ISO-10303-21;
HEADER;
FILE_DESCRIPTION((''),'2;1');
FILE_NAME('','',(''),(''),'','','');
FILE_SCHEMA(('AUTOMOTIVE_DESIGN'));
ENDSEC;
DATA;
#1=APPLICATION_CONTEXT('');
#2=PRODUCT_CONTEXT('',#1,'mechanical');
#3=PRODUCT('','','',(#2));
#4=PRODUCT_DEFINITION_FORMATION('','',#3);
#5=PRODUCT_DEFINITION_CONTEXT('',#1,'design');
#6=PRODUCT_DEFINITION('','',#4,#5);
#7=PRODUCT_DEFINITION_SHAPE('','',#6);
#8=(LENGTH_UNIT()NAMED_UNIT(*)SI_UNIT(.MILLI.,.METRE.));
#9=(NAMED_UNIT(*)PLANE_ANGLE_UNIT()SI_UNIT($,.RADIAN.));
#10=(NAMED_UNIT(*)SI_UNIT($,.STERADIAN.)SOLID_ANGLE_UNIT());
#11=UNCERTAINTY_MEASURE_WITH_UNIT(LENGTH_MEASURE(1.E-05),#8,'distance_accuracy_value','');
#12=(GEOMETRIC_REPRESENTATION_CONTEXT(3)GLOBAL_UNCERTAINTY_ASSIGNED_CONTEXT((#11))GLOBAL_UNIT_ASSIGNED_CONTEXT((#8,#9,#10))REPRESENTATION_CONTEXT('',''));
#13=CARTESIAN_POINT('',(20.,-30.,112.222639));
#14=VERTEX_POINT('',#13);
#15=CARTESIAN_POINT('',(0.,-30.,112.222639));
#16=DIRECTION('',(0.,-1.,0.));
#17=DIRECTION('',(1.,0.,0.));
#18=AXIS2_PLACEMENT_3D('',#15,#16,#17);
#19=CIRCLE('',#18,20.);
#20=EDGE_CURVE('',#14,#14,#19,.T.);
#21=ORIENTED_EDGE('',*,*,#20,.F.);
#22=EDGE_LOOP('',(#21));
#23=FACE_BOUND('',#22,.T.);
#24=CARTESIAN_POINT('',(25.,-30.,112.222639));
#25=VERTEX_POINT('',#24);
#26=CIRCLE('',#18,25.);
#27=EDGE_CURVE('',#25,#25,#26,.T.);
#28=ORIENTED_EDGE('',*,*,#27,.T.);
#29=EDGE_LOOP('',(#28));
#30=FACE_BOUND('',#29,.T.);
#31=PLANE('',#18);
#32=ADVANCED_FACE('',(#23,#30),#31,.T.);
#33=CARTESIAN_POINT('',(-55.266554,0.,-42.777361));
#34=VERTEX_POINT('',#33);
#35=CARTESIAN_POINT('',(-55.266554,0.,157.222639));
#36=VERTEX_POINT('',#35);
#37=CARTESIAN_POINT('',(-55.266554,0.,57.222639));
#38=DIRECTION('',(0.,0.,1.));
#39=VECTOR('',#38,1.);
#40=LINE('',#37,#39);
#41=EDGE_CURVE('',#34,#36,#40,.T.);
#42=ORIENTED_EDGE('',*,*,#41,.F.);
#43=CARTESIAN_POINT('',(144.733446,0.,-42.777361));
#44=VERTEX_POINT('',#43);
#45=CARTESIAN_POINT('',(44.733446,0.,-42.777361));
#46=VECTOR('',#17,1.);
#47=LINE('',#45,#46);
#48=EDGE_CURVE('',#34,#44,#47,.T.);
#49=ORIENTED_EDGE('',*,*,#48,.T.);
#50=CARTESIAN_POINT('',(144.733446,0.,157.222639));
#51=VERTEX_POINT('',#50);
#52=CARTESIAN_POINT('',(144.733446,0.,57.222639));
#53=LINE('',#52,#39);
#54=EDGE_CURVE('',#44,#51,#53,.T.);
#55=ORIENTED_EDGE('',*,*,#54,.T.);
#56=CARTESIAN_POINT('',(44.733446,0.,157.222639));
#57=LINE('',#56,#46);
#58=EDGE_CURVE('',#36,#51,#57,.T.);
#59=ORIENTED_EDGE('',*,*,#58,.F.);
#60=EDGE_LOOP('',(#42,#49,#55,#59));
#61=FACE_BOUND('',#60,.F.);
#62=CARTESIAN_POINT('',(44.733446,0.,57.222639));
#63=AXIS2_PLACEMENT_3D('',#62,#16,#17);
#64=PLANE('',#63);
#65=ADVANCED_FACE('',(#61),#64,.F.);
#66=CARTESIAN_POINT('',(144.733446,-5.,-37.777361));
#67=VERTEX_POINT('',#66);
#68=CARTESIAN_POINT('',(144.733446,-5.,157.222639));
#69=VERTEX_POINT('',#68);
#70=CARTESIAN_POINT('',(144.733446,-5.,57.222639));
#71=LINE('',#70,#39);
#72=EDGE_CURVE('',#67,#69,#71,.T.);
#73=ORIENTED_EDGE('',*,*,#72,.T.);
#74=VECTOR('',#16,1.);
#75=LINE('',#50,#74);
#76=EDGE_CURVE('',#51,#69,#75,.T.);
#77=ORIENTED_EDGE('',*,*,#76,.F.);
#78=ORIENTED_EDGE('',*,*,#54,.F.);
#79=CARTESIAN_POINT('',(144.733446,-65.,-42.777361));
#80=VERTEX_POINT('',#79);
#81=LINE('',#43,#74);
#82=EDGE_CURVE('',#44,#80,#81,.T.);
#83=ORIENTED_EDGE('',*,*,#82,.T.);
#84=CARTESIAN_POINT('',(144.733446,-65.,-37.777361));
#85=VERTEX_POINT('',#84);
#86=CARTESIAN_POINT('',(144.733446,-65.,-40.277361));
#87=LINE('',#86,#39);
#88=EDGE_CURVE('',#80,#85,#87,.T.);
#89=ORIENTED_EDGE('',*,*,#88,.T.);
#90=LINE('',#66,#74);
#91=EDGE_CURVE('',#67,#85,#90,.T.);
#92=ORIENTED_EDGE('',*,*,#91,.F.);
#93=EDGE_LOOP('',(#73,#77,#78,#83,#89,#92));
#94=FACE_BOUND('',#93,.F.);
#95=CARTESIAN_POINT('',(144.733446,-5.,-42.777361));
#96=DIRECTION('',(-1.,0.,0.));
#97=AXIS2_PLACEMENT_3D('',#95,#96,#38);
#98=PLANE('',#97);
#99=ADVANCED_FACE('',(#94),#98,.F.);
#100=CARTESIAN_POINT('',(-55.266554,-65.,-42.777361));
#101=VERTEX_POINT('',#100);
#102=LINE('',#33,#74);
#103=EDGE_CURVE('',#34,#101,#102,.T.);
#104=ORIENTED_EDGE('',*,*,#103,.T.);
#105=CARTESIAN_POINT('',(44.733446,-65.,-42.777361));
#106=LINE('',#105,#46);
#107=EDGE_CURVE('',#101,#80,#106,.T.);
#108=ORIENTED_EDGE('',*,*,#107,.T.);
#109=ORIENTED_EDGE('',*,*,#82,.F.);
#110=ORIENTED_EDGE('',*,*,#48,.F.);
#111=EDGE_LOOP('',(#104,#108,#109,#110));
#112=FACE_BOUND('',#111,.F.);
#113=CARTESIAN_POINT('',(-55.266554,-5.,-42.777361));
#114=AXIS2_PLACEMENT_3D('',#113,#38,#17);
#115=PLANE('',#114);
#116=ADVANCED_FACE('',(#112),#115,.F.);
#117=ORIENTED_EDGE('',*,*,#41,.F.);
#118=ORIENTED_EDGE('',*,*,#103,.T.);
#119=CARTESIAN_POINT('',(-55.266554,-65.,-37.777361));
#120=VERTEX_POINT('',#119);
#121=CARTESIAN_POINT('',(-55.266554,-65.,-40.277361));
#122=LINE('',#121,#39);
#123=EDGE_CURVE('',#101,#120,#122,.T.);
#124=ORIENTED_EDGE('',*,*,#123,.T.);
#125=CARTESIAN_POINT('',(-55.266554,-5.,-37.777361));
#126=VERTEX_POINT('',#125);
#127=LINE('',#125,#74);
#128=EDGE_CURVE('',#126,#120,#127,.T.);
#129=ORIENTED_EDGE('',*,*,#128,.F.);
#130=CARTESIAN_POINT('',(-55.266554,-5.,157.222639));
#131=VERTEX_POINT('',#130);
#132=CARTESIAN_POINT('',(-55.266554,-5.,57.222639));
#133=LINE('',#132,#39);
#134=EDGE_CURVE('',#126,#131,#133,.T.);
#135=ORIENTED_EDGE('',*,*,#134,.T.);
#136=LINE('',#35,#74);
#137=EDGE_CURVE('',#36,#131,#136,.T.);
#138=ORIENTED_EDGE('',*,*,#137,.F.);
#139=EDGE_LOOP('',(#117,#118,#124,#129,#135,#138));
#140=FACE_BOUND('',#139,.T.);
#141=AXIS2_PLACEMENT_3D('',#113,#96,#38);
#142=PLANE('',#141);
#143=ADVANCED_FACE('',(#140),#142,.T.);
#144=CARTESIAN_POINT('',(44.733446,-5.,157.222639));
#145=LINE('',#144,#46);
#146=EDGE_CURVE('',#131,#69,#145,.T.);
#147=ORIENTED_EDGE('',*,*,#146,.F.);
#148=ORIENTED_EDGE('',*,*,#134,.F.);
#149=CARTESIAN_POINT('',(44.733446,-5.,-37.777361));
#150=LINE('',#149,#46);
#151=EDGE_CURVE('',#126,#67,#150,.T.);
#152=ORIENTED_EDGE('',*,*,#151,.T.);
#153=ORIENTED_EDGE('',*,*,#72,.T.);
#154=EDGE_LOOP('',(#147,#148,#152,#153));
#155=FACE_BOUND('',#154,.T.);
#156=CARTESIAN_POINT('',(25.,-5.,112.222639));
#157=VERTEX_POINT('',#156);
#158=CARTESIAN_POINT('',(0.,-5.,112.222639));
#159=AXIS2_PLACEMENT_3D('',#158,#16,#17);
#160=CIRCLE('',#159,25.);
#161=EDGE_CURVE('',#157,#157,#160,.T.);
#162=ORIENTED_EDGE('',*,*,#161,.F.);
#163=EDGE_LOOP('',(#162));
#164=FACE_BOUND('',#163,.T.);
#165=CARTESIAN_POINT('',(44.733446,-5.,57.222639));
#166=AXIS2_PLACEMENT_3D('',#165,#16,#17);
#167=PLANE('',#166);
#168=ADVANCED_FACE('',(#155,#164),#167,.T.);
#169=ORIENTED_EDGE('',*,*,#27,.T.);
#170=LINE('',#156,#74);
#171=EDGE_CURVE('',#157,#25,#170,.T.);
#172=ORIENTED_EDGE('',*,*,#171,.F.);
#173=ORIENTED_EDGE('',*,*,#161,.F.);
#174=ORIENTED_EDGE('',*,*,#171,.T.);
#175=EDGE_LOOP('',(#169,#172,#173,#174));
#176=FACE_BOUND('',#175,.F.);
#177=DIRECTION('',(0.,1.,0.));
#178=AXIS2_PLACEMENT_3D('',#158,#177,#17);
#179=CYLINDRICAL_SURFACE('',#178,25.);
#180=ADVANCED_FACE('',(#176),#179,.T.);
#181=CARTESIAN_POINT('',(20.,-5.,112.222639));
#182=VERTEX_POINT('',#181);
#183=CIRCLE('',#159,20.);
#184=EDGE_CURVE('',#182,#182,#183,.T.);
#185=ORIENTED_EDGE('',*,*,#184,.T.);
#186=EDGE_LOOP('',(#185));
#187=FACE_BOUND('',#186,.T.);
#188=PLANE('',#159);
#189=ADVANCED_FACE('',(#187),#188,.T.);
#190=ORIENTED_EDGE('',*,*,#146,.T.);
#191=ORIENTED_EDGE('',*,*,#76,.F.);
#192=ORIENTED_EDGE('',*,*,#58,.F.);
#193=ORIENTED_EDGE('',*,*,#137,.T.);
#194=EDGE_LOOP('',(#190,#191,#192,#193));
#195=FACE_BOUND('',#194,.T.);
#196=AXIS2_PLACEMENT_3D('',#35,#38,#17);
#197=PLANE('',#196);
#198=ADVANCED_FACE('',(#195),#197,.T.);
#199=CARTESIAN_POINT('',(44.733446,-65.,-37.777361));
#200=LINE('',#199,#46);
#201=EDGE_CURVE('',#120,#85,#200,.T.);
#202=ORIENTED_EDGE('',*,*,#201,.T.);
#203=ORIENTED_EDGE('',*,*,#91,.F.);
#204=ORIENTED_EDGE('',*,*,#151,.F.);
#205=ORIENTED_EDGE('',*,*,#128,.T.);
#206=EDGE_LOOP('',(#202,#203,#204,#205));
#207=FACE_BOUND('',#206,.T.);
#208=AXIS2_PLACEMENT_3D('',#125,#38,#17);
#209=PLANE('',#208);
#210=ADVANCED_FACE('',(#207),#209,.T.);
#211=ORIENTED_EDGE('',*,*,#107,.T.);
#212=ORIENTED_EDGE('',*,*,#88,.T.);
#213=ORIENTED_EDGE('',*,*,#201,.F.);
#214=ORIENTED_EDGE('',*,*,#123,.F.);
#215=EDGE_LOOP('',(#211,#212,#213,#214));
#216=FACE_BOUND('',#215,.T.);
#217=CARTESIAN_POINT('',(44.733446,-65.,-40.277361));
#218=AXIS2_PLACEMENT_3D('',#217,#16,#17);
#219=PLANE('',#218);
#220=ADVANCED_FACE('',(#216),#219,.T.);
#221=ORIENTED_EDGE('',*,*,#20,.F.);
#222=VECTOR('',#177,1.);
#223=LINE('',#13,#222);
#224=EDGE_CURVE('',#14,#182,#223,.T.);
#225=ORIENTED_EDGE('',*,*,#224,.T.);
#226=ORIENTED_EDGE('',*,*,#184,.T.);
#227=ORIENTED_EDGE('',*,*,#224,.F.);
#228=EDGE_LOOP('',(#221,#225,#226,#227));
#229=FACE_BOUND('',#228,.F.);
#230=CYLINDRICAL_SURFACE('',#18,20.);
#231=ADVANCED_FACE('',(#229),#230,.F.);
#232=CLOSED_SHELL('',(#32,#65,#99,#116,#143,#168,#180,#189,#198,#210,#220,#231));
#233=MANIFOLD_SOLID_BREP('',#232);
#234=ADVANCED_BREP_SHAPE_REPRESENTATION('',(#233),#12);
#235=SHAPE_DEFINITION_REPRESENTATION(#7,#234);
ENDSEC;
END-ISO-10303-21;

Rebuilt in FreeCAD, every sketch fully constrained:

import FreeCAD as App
import Part
import Sketcher
from FreeCAD import Vector

doc = App.newDocument("Part")
body = doc.addObject("PartDesign::Body", "Body")

# Sketch on XZ plane
sketch1 = body.newObject("Sketcher::SketchObject", "Sketch")
sketch1.AttachmentSupport = (doc.getObject("XZ_Plane"), [""])
sketch1.MapMode = "FlatFace"
sketch1.addGeometry([
    Part.LineSegment(Vector(-55, 157, 0), Vector(-55, -43, 0)),
    Part.LineSegment(Vector(-55, -43, 0), Vector(145, -43, 0)),
    Part.LineSegment(Vector(145, -43, 0), Vector(145, 157, 0)),
    Part.LineSegment(Vector(145, 157, 0), Vector(-55, 157, 0)),
], False)
sketch1.addConstraint([
    Sketcher.Constraint("Coincident", 0, 2, 1, 1),
    Sketcher.Constraint("Coincident", 1, 2, 2, 1),
    Sketcher.Constraint("Coincident", 2, 2, 3, 1),
    Sketcher.Constraint("Coincident", 3, 2, 0, 1),
    Sketcher.Constraint("Vertical", 0),
    Sketcher.Constraint("Horizontal", 1),
    Sketcher.Constraint("Vertical", 2),
    Sketcher.Constraint("Horizontal", 3),
    Sketcher.Constraint("Equal", 3, 0),
    Sketcher.Constraint("DistanceX", 1, 1, 1, 2, 200.0),
    Sketcher.Constraint("DistanceY", 0, 2, -1, 1, 42.777361),
    Sketcher.Constraint("DistanceX", 0, 2, -1, 1, 55.266554),
])
pad1 = body.newObject("PartDesign::Pad", "Pad")
pad1.Profile = sketch1
pad1.Length = 5

# Sketch on XZ plane
sketch2 = body.newObject("Sketcher::SketchObject", "Sketch001")
sketch2.AttachmentSupport = (doc.getObject("XZ_Plane"), [""])
sketch2.MapMode = "FlatFace"
sketch2.AttachmentOffset = App.Placement(Vector(0, 0, 5), App.Rotation())
sketch2.addGeometry([
    Part.LineSegment(Vector(-55, -38, 0), Vector(-55, -43, 0)),
    Part.LineSegment(Vector(-55, -43, 0), Vector(145, -43, 0)),
    Part.LineSegment(Vector(145, -43, 0), Vector(145, -38, 0)),
    Part.LineSegment(Vector(145, -38, 0), Vector(-55, -38, 0)),
], False)
sketch2.addConstraint([
    Sketcher.Constraint("Coincident", 0, 2, 1, 1),
    Sketcher.Constraint("Coincident", 1, 2, 2, 1),
    Sketcher.Constraint("Coincident", 2, 2, 3, 1),
    Sketcher.Constraint("Coincident", 3, 2, 0, 1),
    Sketcher.Constraint("Vertical", 0),
    Sketcher.Constraint("Horizontal", 1),
    Sketcher.Constraint("Vertical", 2),
    Sketcher.Constraint("Horizontal", 3),
    Sketcher.Constraint("DistanceX", 1, 1, 1, 2, 200.0),
    Sketcher.Constraint("DistanceY", 0, 2, 0, 1, 5.0),
    Sketcher.Constraint("DistanceY", 0, 2, -1, 1, 42.777361),
    Sketcher.Constraint("DistanceX", 0, 2, -1, 1, 55.266554),
])
pad2 = body.newObject("PartDesign::Pad", "Pad001")
pad2.Profile = sketch2
pad2.Length = 60

# Sketch on XZ plane
sketch3 = body.newObject("Sketcher::SketchObject", "Sketch002")
sketch3.AttachmentSupport = (doc.getObject("XZ_Plane"), [""])
sketch3.MapMode = "FlatFace"
sketch3.AttachmentOffset = App.Placement(Vector(0, 0, 5), App.Rotation())
sketch3.addGeometry(Part.Circle(Vector(0, 112, 0), Vector(0, 0, 1), 25), False)
sketch3.addConstraint([
    Sketcher.Constraint("PointOnObject", 0, 3, -2),
    Sketcher.Constraint("Diameter", 0, 50.0),
    Sketcher.Constraint("DistanceY", -1, 1, 0, 3, 112.222639),
])
pad3 = body.newObject("PartDesign::Pad", "Pad002")
pad3.Profile = sketch3
pad3.Length = 25

# Sketch on XZ plane
sketch4 = body.newObject("Sketcher::SketchObject", "Sketch003")
sketch4.AttachmentSupport = (doc.getObject("XZ_Plane"), [""])
sketch4.MapMode = "FlatFace"
sketch4.AttachmentOffset = App.Placement(Vector(0, 0, 30), App.Rotation())
sketch4.addGeometry(Part.Circle(Vector(0, 112, 0), Vector(0, 0, 1), 20), False)
sketch4.addConstraint([
    Sketcher.Constraint("PointOnObject", 0, 3, -2),
    Sketcher.Constraint("Diameter", 0, 40.0),
    Sketcher.Constraint("DistanceY", -1, 1, 0, 3, 112.222639),
])
pocket1 = body.newObject("PartDesign::Pocket", "Pocket")
pocket1.Profile = sketch4
pocket1.Length = 25

doc.recompute()
